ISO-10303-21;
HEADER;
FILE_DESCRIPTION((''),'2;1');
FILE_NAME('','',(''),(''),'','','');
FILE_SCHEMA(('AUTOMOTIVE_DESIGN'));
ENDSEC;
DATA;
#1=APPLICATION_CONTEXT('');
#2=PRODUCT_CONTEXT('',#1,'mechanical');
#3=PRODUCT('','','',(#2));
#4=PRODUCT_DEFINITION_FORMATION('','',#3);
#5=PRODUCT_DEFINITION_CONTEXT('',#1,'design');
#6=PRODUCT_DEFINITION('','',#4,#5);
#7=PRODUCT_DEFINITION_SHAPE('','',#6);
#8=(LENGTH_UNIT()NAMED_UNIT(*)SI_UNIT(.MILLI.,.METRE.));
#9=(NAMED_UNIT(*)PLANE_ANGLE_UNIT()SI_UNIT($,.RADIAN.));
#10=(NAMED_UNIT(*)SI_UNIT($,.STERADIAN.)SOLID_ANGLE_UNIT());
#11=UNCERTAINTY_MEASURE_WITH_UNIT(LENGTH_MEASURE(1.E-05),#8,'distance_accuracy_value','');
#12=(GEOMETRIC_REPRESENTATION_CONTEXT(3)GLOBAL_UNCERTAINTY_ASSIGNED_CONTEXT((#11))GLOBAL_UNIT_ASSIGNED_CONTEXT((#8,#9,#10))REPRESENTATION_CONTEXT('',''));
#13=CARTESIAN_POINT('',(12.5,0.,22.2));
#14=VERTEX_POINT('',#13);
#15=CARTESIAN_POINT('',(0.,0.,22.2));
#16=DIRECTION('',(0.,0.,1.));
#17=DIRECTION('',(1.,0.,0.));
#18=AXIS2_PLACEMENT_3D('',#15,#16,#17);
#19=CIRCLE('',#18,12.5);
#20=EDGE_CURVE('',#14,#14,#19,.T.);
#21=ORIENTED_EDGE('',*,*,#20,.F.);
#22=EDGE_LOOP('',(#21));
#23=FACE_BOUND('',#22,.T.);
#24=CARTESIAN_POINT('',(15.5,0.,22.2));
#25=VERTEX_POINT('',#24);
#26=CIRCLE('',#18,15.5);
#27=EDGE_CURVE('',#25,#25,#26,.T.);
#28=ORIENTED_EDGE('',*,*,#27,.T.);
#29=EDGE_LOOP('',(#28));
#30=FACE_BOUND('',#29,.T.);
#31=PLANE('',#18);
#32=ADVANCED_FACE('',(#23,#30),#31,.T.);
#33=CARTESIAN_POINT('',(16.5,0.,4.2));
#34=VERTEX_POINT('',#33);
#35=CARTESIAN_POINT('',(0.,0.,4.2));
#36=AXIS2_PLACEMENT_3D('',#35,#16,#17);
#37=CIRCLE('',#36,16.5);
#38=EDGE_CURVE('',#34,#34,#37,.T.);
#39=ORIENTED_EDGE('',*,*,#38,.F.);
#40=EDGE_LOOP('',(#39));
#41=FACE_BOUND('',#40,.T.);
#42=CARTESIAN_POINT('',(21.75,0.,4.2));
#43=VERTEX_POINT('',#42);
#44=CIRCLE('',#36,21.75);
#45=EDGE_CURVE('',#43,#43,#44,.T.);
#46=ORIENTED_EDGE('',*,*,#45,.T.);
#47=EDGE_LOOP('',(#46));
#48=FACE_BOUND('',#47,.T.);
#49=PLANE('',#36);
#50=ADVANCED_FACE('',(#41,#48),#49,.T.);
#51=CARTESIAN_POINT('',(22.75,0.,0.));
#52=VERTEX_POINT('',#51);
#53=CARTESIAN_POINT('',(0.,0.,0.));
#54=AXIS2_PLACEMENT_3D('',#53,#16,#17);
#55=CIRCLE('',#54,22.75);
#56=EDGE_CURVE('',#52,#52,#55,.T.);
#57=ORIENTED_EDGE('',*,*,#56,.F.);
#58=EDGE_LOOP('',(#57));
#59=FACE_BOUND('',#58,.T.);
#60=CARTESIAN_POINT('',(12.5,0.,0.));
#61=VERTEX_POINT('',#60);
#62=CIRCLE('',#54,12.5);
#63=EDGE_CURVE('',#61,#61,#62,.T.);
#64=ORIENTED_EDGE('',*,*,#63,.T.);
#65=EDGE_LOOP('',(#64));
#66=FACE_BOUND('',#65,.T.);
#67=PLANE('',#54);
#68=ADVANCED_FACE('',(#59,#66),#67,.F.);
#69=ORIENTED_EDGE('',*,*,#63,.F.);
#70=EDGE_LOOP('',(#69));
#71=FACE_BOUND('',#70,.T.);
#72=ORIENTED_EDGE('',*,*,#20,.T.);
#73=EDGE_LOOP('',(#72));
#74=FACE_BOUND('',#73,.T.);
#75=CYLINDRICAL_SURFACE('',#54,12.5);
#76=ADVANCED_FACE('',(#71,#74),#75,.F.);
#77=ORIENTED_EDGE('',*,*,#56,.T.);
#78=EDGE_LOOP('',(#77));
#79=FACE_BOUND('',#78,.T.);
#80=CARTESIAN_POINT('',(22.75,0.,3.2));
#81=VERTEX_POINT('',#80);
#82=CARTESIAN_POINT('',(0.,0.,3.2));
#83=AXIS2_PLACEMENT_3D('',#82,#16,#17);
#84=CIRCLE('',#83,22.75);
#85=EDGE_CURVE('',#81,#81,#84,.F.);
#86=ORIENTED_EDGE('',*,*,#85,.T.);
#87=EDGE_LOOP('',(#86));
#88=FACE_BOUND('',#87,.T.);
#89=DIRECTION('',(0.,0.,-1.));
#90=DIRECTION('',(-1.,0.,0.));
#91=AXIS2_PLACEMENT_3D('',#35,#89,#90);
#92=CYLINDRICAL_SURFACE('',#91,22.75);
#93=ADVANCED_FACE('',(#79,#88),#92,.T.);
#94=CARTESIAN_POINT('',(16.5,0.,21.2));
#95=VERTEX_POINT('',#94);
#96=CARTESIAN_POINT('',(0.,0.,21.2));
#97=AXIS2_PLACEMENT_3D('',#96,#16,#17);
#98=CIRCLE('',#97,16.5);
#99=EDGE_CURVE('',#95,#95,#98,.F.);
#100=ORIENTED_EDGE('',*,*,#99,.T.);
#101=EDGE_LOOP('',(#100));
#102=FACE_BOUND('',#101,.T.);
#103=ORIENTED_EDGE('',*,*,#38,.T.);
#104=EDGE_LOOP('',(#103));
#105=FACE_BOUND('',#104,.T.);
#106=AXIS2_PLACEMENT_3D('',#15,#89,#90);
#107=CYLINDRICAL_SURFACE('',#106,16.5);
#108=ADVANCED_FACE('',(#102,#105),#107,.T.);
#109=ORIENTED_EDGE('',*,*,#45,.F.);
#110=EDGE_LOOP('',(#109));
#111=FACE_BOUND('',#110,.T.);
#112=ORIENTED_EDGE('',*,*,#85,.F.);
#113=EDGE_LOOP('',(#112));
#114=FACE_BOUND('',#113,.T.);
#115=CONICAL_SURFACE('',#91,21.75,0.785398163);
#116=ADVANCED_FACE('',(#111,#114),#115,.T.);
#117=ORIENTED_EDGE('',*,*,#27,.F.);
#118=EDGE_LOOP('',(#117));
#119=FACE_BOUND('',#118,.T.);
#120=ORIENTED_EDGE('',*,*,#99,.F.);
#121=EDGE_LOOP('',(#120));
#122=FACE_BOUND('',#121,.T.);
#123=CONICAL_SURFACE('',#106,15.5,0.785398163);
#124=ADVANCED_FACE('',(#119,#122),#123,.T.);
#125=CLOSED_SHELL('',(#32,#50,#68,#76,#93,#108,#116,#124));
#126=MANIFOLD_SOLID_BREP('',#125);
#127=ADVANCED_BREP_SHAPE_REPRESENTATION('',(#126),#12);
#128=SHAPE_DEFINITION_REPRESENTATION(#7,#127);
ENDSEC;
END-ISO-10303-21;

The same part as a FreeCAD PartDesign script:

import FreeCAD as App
import Part
import Sketcher
from FreeCAD import Vector


def edges_at(feature, points):
    """Names of the edges that pass closest to the given points."""
    edges = feature.Shape.Edges
    near = lambda p: min(range(len(edges)), key=lambda i: edges[i].distToShape(Part.Vertex(*p))[0])
    return sorted({f"Edge{near(p) + 1}" for p in points})

doc = App.newDocument("Part")
body = doc.addObject("PartDesign::Body", "Body")

# Sketch on XY plane
sketch1 = body.newObject("Sketcher::SketchObject", "Sketch")
sketch1.AttachmentSupport = (doc.getObject("XY_Plane"), [""])
sketch1.MapMode = "FlatFace"
sketch1.addGeometry(Part.Circle(Vector(0, 0, 0), Vector(0, 0, 1), 22.75), False)
sketch1.addConstraint([
    Sketcher.Constraint("Coincident", 0, 3, -1, 1),
    Sketcher.Constraint("Diameter", 0, 45.5),
])
pad1 = body.newObject("PartDesign::Pad", "Pad")
pad1.Profile = sketch1
pad1.Length = 4.2

# Sketch on XY plane
sketch2 = body.newObject("Sketcher::SketchObject", "Sketch001")
sketch2.AttachmentSupport = (doc.getObject("XY_Plane"), [""])
sketch2.MapMode = "FlatFace"
sketch2.AttachmentOffset = App.Placement(Vector(0, 0, 4.2), App.Rotation())
sketch2.addGeometry(Part.Circle(Vector(0, 0, 0), Vector(0, 0, 1), 16.5), False)
sketch2.addConstraint([
    Sketcher.Constraint("Coincident", 0, 3, -1, 1),
    Sketcher.Constraint("Diameter", 0, 33.0),
])
pad2 = body.newObject("PartDesign::Pad", "Pad001")
pad2.Profile = sketch2
pad2.Length = 18

# Sketch on XY plane
sketch3 = body.newObject("Sketcher::SketchObject", "Sketch002")
sketch3.AttachmentSupport = (doc.getObject("XY_Plane"), [""])
sketch3.MapMode = "FlatFace"
sketch3.AttachmentOffset = App.Placement(Vector(0, 0, 22.2), App.Rotation())
sketch3.addGeometry(Part.Circle(Vector(0, 0, 0), Vector(0, 0, 1), 12.5), False)
sketch3.addConstraint([
    Sketcher.Constraint("Coincident", 0, 3, -1, 1),
    Sketcher.Constraint("Diameter", 0, 25.0),
])
pocket1 = body.newObject("PartDesign::Pocket", "Pocket")
pocket1.Profile = sketch3
pocket1.Type = "ThroughAll"
doc.recompute()

chamfer = body.newObject("PartDesign::Chamfer", "Chamfer")
chamfer.Base = (pocket1, edges_at(pocket1, [(-22.75, 0, 4.2), (-16.5, 0, 22.2)]))
chamfer.Size = 1

doc.recompute()
